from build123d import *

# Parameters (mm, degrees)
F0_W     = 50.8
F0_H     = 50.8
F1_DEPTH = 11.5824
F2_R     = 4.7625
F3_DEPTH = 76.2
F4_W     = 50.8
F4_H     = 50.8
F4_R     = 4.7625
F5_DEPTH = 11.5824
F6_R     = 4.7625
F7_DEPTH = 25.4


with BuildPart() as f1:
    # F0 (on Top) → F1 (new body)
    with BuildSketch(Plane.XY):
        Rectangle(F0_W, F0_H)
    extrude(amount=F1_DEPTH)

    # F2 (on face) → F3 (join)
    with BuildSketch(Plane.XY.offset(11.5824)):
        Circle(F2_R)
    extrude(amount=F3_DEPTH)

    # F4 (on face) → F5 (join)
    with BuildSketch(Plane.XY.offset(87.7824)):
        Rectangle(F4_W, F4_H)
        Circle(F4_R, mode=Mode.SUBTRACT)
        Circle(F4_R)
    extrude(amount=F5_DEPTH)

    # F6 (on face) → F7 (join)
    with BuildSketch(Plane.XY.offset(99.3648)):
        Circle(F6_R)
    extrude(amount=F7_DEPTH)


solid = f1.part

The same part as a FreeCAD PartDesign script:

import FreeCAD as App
import Part
import Sketcher
from FreeCAD import Vector
Q = App.Units.Quantity


def add_polygon(sketch, points):
    """Adds a closed chain of lines whose ends are joined by coincident constraints."""
    first, n = sketch.GeometryCount, len(points)
    for a, b in zip(points, points[1:] + points[:1]):
        sketch.addGeometry(Part.LineSegment(App.Vector(*a, 0), App.Vector(*b, 0)), False)
    for i in range(n):
        sketch.addConstraint(Sketcher.Constraint("Coincident", first + i, 2, first + (i + 1) % n, 1))

doc = App.newDocument("Part")
params = doc.addObject("Spreadsheet::Sheet", "Params")
for row, (alias, value) in enumerate([
    ("sketch1_width", "2 in"),
    ("pad1_length", "0.456 in"),
    ("sketch2_diameter", "0.375 in"),
    ("pad2_length", "3 in"),
    ("sketch3_width", "2 in"),
    ("pad3_length", "0.456 in"),
    ("sketch4_diameter", "0.375 in"),
    ("pad4_length", "1 in"),
], start=1):
    params.set(f"A{row}", alias)
    params.set(f"B{row}", "=" + value)
    params.setAlias(f"B{row}", alias)

body = doc.addObject("PartDesign::Body", "Body")

# Sketch on XY plane
sketch1 = body.newObject("Sketcher::SketchObject", "Sketch")
sketch1.AttachmentSupport = (doc.getObject("XY_Plane"), [""])
sketch1.MapMode = "FlatFace"
add_polygon(sketch1, [(-25, 25), (-25, -25), (25, -25), (25, 25)])  # lines 0-3
sketch1.addConstraint([
    Sketcher.Constraint("Vertical", 0),
    Sketcher.Constraint("Horizontal", 1),
    Sketcher.Constraint("Vertical", 2),
    Sketcher.Constraint("Horizontal", 3),
    Sketcher.Constraint("Symmetric", 0, 2, 2, 2, -1, 1),
    Sketcher.Constraint("Equal", 3, 0),
    Sketcher.Constraint("DistanceX", 1, 1, 1, 2, Q("2 in")),
])
sketch1.setExpression("Constraints[10]", "Params.sketch1_width")
pad1 = body.newObject("PartDesign::Pad", "Pad")
pad1.Profile = sketch1
pad1.setExpression("Length", "Params.pad1_length")

# Sketch on XY plane
sketch2 = body.newObject("Sketcher::SketchObject", "Sketch001")
sketch2.AttachmentSupport = (doc.getObject("XY_Plane"), [""])
sketch2.MapMode = "FlatFace"
sketch2.AttachmentOffset = App.Placement(Vector(0, 0, 0.456 * 25.4), App.Rotation())
sketch2.addGeometry(Part.Circle(Vector(0, 0, 0), Vector(0, 0, 1), 4.8), False)
sketch2.addConstraint([
    Sketcher.Constraint("Coincident", 0, 3, -1, 1),
    Sketcher.Constraint("Diameter", 0, Q("0.375 in")),
])
sketch2.setExpression("Constraints[1]", "Params.sketch2_diameter")
pad2 = body.newObject("PartDesign::Pad", "Pad001")
pad2.Profile = sketch2
pad2.setExpression("Length", "Params.pad2_length")

# Sketch on XY plane
sketch3 = body.newObject("Sketcher::SketchObject", "Sketch002")
sketch3.AttachmentSupport = (doc.getObject("XY_Plane"), [""])
sketch3.MapMode = "FlatFace"
sketch3.AttachmentOffset = App.Placement(Vector(0, 0, 3.456 * 25.4), App.Rotation())
add_polygon(sketch3, [(-25, 25), (-25, -25), (25, -25), (25, 25)])  # lines 0-3
sketch3.addConstraint([
    Sketcher.Constraint("Vertical", 0),
    Sketcher.Constraint("Horizontal", 1),
    Sketcher.Constraint("Vertical", 2),
    Sketcher.Constraint("Horizontal", 3),
    Sketcher.Constraint("Symmetric", 0, 2, 2, 2, -1, 1),
    Sketcher.Constraint("Equal", 3, 0),
    Sketcher.Constraint("DistanceX", 1, 1, 1, 2, Q("2 in")),
])
sketch3.setExpression("Constraints[10]", "Params.sketch3_width")
pad3 = body.newObject("PartDesign::Pad", "Pad002")
pad3.Profile = sketch3
pad3.setExpression("Length", "Params.pad3_length")

# Sketch on XY plane
sketch4 = body.newObject("Sketcher::SketchObject", "Sketch003")
sketch4.AttachmentSupport = (doc.getObject("XY_Plane"), [""])
sketch4.MapMode = "FlatFace"
sketch4.AttachmentOffset = App.Placement(Vector(0, 0, 3.912 * 25.4), App.Rotation())
sketch4.addGeometry(Part.Circle(Vector(0, 0, 0), Vector(0, 0, 1), 4.8), False)
sketch4.addConstraint([
    Sketcher.Constraint("Coincident", 0, 3, -1, 1),
    Sketcher.Constraint("Diameter", 0, Q("0.375 in")),
])
sketch4.setExpression("Constraints[1]", "Params.sketch4_diameter")
pad4 = body.newObject("PartDesign::Pad", "Pad003")
pad4.Profile = sketch4
pad4.setExpression("Length", "Params.pad4_length")

doc.recompute()
